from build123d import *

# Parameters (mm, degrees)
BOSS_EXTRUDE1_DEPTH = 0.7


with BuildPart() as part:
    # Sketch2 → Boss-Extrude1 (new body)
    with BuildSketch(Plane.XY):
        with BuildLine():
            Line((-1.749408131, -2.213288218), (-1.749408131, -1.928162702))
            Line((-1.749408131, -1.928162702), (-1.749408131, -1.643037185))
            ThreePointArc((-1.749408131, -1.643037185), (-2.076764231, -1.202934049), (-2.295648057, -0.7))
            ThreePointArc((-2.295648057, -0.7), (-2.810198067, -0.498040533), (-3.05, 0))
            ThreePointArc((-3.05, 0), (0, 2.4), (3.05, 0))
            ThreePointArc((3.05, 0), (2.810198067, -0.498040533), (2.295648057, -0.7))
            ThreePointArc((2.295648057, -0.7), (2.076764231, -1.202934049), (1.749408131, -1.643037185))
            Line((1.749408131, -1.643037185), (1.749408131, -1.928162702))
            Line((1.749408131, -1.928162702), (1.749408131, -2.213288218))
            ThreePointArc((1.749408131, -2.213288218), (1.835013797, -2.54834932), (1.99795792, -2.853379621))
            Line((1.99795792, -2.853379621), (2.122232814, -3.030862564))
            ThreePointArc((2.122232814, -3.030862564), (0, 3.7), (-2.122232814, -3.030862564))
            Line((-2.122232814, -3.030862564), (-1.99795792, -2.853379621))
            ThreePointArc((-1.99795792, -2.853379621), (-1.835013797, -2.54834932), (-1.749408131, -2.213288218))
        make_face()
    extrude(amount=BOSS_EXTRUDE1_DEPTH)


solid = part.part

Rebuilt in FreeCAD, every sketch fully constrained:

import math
import FreeCAD as App
import Part
import Sketcher

V = App.Vector
Q = App.Units.Quantity

doc = App.newDocument("Part")
params = doc.addObject("Spreadsheet::Sheet", "Params")
for row, (alias, value) in enumerate([
    ("sketch1_radius", "2.4 mm"),
    ("sketch1_radius2", "3.7 mm"),
    ("pad1_length", "0.7 mm"),
], start=1):
    params.set(f"A{row}", alias)
    params.set(f"B{row}", "=" + value)
    params.setAlias(f"B{row}", alias)

body = doc.addObject("PartDesign::Body", "Body")

sketch1 = body.newObject("Sketcher::SketchObject", "Sketch")
sketch1.AttachmentSupport = (doc.getObject("XY_Plane"), [""])
sketch1.MapMode = "FlatFace"
sketch1.addGeometry([
    Part.LineSegment(V(-1.749408, -2.213288, 0), V(-1.749408, -1.643037, 0)),
    Part.ArcOfCircle(Part.Circle(V(0, 0, 0), V(0, 0, 1), 2.4), math.radians(-163.042237), math.radians(-136.795935)),
    Part.ArcOfCircle(Part.Circle(V(-2.295648, 0.056462, 0), V(0, 0, 1), 0.756462), math.radians(-175.719484), math.radians(-90)),
    Part.ArcOfCircle(Part.Circle(V(0, -0.738021, 0), V(0, 0, 1), 3.138021), math.radians(13.60263), math.radians(166.39737)),
    Part.ArcOfCircle(Part.Circle(V(2.295648, 0.056462, 0), V(0, 0, 1), 0.756462), math.radians(-90), math.radians(-4.280516)),
    Part.ArcOfCircle(Part.Circle(V(0, 0, 0), V(0, 0, 1), 2.4), math.radians(-43.204065), math.radians(-16.957763)),
    Part.LineSegment(V(1.749408, -1.643037, 0), V(1.749408, -2.213288, 0)),
    Part.ArcOfCircle(Part.Circle(V(3.178777, -2.026561, 0), V(0, 0, 1), 1.441514), math.radians(-172.55726), math.radians(-145)),
    Part.LineSegment(V(1.997958, -2.85338, 0), V(2.122233, -3.030863, 0)),
    Part.ArcOfCircle(Part.Circle(V(0, 0, 0), V(0, 0, 1), 3.7), math.radians(-55), math.radians(235)),
    Part.LineSegment(V(-2.122233, -3.030863, 0), V(-1.997958, -2.85338, 0)),
    Part.ArcOfCircle(Part.Circle(V(-3.178777, -2.026561, 0), V(0, 0, 1), 1.441514), math.radians(-35), math.radians(-7.44274)),
], False)
sketch1.addConstraint([
    Sketcher.Constraint("Coincident", 0, 2, 1, 2),
    Sketcher.Constraint("Coincident", 1, 1, 2, 2),
    Sketcher.Constraint("Coincident", 2, 1, 3, 2),
    Sketcher.Constraint("Coincident", 3, 1, 4, 2),
    Sketcher.Constraint("Coincident", 4, 1, 5, 2),
    Sketcher.Constraint("Coincident", 5, 1, 6, 1),
    Sketcher.Constraint("Coincident", 6, 2, 7, 1),
    Sketcher.Constraint("Tangent", 7, 2, 8, 1),
    Sketcher.Constraint("Coincident", 8, 2, 9, 1),
    Sketcher.Constraint("Coincident", 9, 2, 10, 1),
    Sketcher.Constraint("Tangent", 10, 2, 11, 1),
    Sketcher.Constraint("Coincident", 11, 2, 0, 1),
    Sketcher.Constraint("Vertical", 0),
    Sketcher.Constraint("Vertical", 6),
    Sketcher.Constraint("Coincident", 1, 3, -1, 1),
    Sketcher.Constraint("Coincident", 5, 3, -1, 1),
    Sketcher.Constraint("Coincident", 9, 3, -1, 1),
    Sketcher.Constraint("Equal", 2, 4),
    Sketcher.Constraint("Equal", 1, 5),
    Sketcher.Constraint("Equal", 7, 11),
    Sketcher.Constraint("Symmetric", 2, 1, 3, 1, -1, 1),
    Sketcher.Constraint("Symmetric", 2, 3, 4, 3, -2),
    Sketcher.Constraint("Symmetric", 7, 3, 11, 3, -2),
    Sketcher.Constraint("Horizontal", 0, 2, 5, 1),
    Sketcher.Constraint("Horizontal", 8, 2, 9, 2),
    Sketcher.Constraint("Vertical", 2, 3, 1, 1),
    Sketcher.Constraint("Radius", 1, 2.4),
    Sketcher.Constraint("Radius", 9, 3.7),
    Sketcher.Constraint("Angle", 8, Q("-55 deg")),
    Sketcher.Constraint("DistanceY", 1, 1, -1, 1, 0.7),
    Sketcher.Constraint("DistanceX", 2, 1, -1, 1, 3.05),
    Sketcher.Constraint("Radius", 3, 3.138021),
    Sketcher.Constraint("Radius", 7, 1.441514),
    Sketcher.Constraint("DistanceY", 0, 1, 0, 2, 0.570251),
    Sketcher.Constraint("DistanceY", 0, 2, 2, 3, 1.699499),
    Sketcher.Constraint("DistanceY", 8, 2, 7, 3, 1.004301),
])
sketch1.setExpression("Constraints[26]", "Params.sketch1_radius")
sketch1.setExpression("Constraints[27]", "Params.sketch1_radius2")
pad1 = body.newObject("PartDesign::Pad", "Pad")
pad1.Profile = sketch1
pad1.setExpression("Length", "Params.pad1_length")

doc.recompute()
